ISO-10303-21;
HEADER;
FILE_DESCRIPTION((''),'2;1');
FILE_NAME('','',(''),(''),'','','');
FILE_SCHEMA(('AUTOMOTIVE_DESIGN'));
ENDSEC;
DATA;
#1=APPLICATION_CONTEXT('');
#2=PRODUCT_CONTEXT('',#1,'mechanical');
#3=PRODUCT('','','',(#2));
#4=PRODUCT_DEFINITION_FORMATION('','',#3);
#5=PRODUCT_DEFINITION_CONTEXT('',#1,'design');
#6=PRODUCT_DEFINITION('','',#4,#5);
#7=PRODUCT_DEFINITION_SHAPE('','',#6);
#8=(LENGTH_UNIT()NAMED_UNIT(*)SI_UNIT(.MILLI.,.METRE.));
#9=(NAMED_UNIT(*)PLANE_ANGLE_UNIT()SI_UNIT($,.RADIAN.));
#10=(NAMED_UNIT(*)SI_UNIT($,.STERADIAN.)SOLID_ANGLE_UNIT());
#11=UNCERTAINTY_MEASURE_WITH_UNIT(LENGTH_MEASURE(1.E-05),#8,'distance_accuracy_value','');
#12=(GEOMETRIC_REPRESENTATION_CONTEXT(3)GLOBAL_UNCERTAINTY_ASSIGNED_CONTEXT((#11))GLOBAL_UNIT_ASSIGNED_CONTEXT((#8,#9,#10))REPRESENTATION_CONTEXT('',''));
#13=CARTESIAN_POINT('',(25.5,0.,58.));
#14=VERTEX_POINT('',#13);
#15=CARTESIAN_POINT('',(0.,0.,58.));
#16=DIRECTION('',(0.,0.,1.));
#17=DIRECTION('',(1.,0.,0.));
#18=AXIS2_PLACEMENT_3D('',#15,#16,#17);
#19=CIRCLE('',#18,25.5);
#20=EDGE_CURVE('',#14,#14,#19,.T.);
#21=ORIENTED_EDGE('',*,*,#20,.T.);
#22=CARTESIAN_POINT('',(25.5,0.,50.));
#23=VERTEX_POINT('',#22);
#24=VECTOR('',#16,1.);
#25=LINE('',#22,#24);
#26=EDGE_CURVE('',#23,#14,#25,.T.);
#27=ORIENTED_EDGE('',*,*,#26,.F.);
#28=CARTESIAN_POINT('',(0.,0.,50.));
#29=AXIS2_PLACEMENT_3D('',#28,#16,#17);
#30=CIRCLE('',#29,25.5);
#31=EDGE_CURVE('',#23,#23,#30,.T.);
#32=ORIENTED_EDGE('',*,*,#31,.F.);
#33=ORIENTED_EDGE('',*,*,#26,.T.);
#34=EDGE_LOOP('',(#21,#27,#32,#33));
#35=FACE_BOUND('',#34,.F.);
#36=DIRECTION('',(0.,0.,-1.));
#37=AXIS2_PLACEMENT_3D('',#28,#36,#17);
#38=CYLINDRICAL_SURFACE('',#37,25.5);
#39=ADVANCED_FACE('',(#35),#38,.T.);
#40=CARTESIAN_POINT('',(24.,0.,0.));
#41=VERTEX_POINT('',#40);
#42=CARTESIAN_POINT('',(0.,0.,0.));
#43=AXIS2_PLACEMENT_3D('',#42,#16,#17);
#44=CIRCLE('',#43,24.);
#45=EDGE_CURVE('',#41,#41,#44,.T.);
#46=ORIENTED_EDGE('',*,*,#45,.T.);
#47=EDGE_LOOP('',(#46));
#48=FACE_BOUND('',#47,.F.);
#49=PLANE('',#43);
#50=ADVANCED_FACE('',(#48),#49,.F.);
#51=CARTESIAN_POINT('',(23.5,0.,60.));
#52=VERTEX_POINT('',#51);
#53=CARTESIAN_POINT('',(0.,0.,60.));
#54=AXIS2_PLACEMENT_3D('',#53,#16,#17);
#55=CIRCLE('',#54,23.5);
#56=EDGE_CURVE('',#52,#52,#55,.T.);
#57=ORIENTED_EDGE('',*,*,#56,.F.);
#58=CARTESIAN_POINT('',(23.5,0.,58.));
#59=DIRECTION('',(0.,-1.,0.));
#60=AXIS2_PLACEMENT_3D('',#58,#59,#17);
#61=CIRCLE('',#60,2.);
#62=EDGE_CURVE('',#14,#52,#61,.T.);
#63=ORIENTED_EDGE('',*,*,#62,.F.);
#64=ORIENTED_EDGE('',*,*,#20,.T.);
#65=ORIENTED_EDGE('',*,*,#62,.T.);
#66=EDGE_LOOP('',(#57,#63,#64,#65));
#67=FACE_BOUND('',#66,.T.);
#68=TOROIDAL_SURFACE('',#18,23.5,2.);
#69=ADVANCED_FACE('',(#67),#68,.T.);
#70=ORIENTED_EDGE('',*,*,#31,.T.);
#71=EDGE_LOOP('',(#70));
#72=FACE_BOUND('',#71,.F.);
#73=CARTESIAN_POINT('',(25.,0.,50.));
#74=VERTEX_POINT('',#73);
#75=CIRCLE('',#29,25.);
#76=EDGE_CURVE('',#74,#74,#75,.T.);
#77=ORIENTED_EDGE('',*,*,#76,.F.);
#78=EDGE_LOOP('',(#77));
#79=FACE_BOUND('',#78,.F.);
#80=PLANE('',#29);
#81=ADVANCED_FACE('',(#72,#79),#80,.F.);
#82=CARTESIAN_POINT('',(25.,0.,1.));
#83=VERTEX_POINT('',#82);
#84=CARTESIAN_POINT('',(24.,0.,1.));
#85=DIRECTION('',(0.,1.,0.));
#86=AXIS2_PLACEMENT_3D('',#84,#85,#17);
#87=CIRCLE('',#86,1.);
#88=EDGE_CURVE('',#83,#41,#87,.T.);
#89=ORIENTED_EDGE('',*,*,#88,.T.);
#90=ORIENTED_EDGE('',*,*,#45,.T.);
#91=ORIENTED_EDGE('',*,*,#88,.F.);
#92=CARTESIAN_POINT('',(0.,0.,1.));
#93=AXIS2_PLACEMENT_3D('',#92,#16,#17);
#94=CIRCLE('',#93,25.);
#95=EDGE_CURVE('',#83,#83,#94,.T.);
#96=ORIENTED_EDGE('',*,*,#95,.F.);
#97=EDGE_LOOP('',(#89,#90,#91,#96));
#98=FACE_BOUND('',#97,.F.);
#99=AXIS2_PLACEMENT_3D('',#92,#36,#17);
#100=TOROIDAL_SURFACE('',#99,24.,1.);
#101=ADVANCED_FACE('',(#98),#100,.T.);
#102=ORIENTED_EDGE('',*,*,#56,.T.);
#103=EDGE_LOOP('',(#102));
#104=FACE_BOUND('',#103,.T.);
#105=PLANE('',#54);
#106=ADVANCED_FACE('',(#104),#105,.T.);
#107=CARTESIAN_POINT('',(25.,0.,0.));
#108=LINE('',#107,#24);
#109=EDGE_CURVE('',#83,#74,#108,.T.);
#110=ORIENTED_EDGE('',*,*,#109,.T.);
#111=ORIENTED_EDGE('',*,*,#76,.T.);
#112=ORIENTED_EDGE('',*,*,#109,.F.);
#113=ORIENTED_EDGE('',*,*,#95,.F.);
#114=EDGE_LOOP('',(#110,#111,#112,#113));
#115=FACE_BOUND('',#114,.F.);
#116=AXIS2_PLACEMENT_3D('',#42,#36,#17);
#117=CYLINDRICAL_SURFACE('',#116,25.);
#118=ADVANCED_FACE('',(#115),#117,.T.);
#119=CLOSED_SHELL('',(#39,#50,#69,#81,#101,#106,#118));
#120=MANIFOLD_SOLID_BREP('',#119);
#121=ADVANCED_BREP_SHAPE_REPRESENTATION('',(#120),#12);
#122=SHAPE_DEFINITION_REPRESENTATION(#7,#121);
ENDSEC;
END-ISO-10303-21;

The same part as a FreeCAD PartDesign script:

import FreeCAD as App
import Part
import Sketcher
Q = App.Units.Quantity


def edges_at(feature, points):
    """Names of the edges that pass closest to the given points."""
    edges = feature.Shape.Edges
    near = lambda p: min(range(len(edges)), key=lambda i: edges[i].distToShape(Part.Vertex(*p))[0])
    return sorted({f"Edge{near(p) + 1}" for p in points})

doc = App.newDocument("Part")
body = doc.addObject("PartDesign::Body", "Body")

# Sketch on XY plane
sketch1 = doc.addObject("Sketcher::SketchObject", "Sketch")
body.addObject(sketch1)
sketch1.AttachmentSupport = (doc.XY_Plane, [""])
sketch1.MapMode = "FlatFace"
sketch1.addGeometry(Part.Circle(App.Vector(0, 0, 0), App.Vector(0, 0, 1), 25), False)
sketch1.addConstraint(Sketcher.Constraint("Coincident", 0, 3, -1, 1))
sketch1.addConstraint(Sketcher.Constraint("Diameter", 0, Q("50 mm")))
pad1 = doc.addObject("PartDesign::Pad", "Pad")
body.addObject(pad1)
pad1.Profile = sketch1
pad1.Length = 50

# Sketch on XY plane
sketch2 = doc.addObject("Sketcher::SketchObject", "Sketch001")
body.addObject(sketch2)
sketch2.AttachmentSupport = (doc.XY_Plane, [""])
sketch2.MapMode = "FlatFace"
sketch2.AttachmentOffset = App.Placement(App.Vector(0, 0, 50), App.Rotation())
sketch2.addGeometry(Part.Circle(App.Vector(0, 0, 0), App.Vector(0, 0, 1), 26), False)
sketch2.addConstraint(Sketcher.Constraint("Coincident", 0, 3, -1, 1))
sketch2.addConstraint(Sketcher.Constraint("Diameter", 0, Q("51 mm")))
pad2 = doc.addObject("PartDesign::Pad", "Pad001")
body.addObject(pad2)
pad2.Profile = sketch2
pad2.Length = 10
doc.recompute()

fillet = doc.addObject("PartDesign::Fillet", "Fillet")
body.addObject(fillet)
fillet.Base = (pad2, edges_at(pad2, [(-25.5, 0, 60)]))
fillet.Radius = 2
doc.recompute()

fillet2 = doc.addObject("PartDesign::Fillet", "Fillet001")
body.addObject(fillet2)
fillet2.Base = (fillet, edges_at(fillet, [(-25, 0, 0)]))
fillet2.Radius = 1

doc.recompute()
